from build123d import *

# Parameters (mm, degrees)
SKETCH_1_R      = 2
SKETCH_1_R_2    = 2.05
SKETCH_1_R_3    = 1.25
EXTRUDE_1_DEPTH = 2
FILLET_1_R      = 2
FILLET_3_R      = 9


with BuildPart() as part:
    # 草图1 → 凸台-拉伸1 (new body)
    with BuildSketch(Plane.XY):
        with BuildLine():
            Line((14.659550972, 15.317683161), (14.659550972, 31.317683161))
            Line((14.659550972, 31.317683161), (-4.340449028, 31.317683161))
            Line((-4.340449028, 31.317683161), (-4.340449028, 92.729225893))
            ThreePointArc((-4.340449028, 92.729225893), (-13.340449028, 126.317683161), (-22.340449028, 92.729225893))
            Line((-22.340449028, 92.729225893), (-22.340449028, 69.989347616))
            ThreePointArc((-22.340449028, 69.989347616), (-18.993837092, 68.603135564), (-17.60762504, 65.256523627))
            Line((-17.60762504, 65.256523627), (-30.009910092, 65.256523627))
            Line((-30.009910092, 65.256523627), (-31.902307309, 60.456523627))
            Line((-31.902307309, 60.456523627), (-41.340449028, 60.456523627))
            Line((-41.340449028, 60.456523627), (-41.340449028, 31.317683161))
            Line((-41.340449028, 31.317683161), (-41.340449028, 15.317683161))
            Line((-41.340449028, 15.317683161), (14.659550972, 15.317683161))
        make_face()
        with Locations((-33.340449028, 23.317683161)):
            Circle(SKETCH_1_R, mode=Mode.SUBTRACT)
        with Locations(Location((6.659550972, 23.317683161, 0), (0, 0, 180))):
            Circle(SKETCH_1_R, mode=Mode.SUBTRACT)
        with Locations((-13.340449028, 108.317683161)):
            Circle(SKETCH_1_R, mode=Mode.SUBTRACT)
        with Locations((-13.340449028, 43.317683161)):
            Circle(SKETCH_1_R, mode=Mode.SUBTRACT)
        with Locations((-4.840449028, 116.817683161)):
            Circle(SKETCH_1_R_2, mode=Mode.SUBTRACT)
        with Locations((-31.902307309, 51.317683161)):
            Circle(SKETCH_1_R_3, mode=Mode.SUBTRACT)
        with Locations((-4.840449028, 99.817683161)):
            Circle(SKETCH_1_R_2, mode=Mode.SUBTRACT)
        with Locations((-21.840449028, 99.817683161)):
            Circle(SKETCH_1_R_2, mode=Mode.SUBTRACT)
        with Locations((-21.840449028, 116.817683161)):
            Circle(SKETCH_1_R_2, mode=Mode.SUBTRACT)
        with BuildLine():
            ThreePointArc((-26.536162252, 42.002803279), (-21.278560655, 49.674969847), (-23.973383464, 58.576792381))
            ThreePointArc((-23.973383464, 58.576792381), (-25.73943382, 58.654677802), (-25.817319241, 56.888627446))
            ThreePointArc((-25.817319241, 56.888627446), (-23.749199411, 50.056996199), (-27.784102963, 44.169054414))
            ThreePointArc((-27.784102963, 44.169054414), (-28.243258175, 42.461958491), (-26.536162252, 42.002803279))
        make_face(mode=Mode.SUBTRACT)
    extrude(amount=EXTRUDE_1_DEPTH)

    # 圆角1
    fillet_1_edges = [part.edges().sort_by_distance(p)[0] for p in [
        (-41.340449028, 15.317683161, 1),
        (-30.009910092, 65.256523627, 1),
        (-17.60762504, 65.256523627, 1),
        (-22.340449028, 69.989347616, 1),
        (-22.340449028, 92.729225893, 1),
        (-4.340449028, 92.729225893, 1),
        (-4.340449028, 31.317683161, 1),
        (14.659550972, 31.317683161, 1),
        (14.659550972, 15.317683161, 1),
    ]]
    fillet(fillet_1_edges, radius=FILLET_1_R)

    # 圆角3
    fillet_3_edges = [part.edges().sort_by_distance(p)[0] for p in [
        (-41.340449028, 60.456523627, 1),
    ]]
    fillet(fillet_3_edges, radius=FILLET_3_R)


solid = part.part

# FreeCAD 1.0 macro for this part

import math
import FreeCAD as App
import Part
import Sketcher

V = App.Vector


def edges_at(feature, points):
    """Names of the edges that pass closest to the given points."""
    edges = feature.Shape.Edges
    near = lambda p: min(range(len(edges)), key=lambda i: edges[i].distToShape(Part.Vertex(*p))[0])
    return sorted({f"Edge{near(p) + 1}" for p in points})

doc = App.newDocument("Part")
params = doc.addObject("Spreadsheet::Sheet", "Params")
for row, (alias, value) in enumerate([
    ("sketch1_diameter", "4 mm"),
    ("sketch1_radius", "18 mm"),
    ("sketch1_diameter2", "2.5 mm"),
    ("sketch1_diameter3", "4.1 mm"),
    ("sketch1_width", "19 mm"),
    ("pad1_length", "2 mm"),
    ("fillet_radius", "2 mm"),
    ("fillet2_radius", "9 mm"),
], start=1):
    params.set(f"A{row}", alias)
    params.set(f"B{row}", "=" + value)
    params.setAlias(f"B{row}", alias)

body = doc.addObject("PartDesign::Body", "Body")

# Sketch on XY plane
sketch1 = body.newObject("Sketcher::SketchObject", "Sketch")
sketch1.AttachmentSupport = (doc.getObject("XY_Plane"), [""])
sketch1.MapMode = "FlatFace"
sketch1.addGeometry([
    Part.LineSegment(V(14.7, 15.3, 0), V(14.7, 31.3, 0)),  # 0
    Part.LineSegment(V(14.7, 31.3, 0), V(-4.3, 31.3, 0)),  # 1
    Part.LineSegment(V(-4.3, 31.3, 0), V(-4.3, 92.7, 0)),  # 2
    Part.ArcOfCircle(Part.Circle(V(-13.3, 108.3, 0), V(0, 0, 1), 18), math.radians(-60), math.radians(240)),  # 3
    Part.LineSegment(V(-22.3, 92.7, 0), V(-22.3, 70, 0)),  # 4
    Part.ArcOfCircle(Part.Circle(V(-22.3, 65.3, 0), V(0, 0, 1), 4.7), math.radians(0), math.radians(90)),  # 5
    Part.LineSegment(V(-17.6, 65.3, 0), V(-30, 65.3, 0)),  # 6
    Part.LineSegment(V(-30, 65.3, 0), V(-31.9, 60.5, 0)),  # 7
    Part.LineSegment(V(-31.9, 60.5, 0), V(-41.3, 60.5, 0)),  # 8
    Part.LineSegment(V(-41.3, 60.5, 0), V(-41.3, 15.3, 0)),  # 9
    Part.LineSegment(V(-41.3, 15.3, 0), V(14.7, 15.3, 0)),  # 10
    Part.Circle(V(-33.3, 23.3, 0), V(0, 0, 1), 2),  # 11
    Part.Circle(V(-31.9, 51.3, 0), V(0, 0, 1), 1.2),  # 12
    Part.ArcOfCircle(Part.Circle(V(-31.9, 51.3, 0), V(0, 0, 1), 10.8), math.radians(-60), math.radians(42)),  # 13
    Part.ArcOfCircle(Part.Circle(V(-27.2, 43.1, 0), V(0, 0, 1), 1.2), math.radians(120), math.radians(300)),  # 14
    Part.ArcOfCircle(Part.Circle(V(-31.9, 51.3, 0), V(0, 0, 1), 8.2), math.radians(-60), math.radians(42)),  # 15
    Part.ArcOfCircle(Part.Circle(V(-24.9, 57.7, 0), V(0, 0, 1), 1.2), math.radians(42), math.radians(222)),  # 16
    Part.Circle(V(-13.3, 43.3, 0), V(0, 0, 1), 2),  # 17
    Part.Circle(V(6.7, 23.3, 0), V(0, 0, 1), 2),  # 18
    Part.Circle(V(-21.8, 99.8, 0), V(0, 0, 1), 2),  # 19
    Part.Circle(V(-21.8, 116.8, 0), V(0, 0, 1), 2),  # 20
    Part.Circle(V(-4.8, 99.8, 0), V(0, 0, 1), 2),  # 21
    Part.Circle(V(-13.3, 108.3, 0), V(0, 0, 1), 2),  # 22
    Part.Circle(V(-4.8, 116.8, 0), V(0, 0, 1), 2),  # 23
], False)
sketch1.addConstraint([
    Sketcher.Constraint("Coincident", 0, 2, 1, 1),
    Sketcher.Constraint("Coincident", 1, 2, 2, 1),
    Sketcher.Constraint("Coincident", 2, 2, 3, 1),
    Sketcher.Constraint("Coincident", 3, 2, 4, 1),
    Sketcher.Constraint("Coincident", 4, 2, 5, 2),
    Sketcher.Constraint("Coincident", 5, 1, 6, 1),
    Sketcher.Constraint("Coincident", 6, 2, 7, 1),
    Sketcher.Constraint("Coincident", 7, 2, 8, 1),
    Sketcher.Constraint("Coincident", 8, 2, 9, 1),
    Sketcher.Constraint("Coincident", 9, 2, 10, 1),
    Sketcher.Constraint("Coincident", 10, 2, 0, 1),
    Sketcher.Constraint("Tangent", 13, 1, 14, 2),
    Sketcher.Constraint("Tangent", 14, 1, 15, 1),
    Sketcher.Constraint("Tangent", 15, 2, 16, 2),
    Sketcher.Constraint("Tangent", 16, 1, 13, 2),
    Sketcher.Constraint("Vertical", 0),
    Sketcher.Constraint("Horizontal", 1),
    Sketcher.Constraint("Vertical", 2),
    Sketcher.Constraint("Vertical", 4),
    Sketcher.Constraint("Horizontal", 6),
    Sketcher.Constraint("Horizontal", 8),
    Sketcher.Constraint("Vertical", 9),
    Sketcher.Constraint("Horizontal", 10),
    Sketcher.Constraint("Coincident", 13, 3, 12, 3),
    Sketcher.Constraint("Coincident", 15, 3, 12, 3),
    Sketcher.Constraint("Coincident", 22, 3, 3, 3),
    Sketcher.Constraint("Equal", 12, 14),
    Sketcher.Constraint("Equal", 11, 17),
    Sketcher.Constraint("Equal", 17, 18),
    Sketcher.Constraint("Equal", 19, 20),
    Sketcher.Constraint("Equal", 20, 21),
    Sketcher.Constraint("Equal", 18, 22),
    Sketcher.Constraint("Equal", 21, 23),
    Sketcher.Constraint("Horizontal", 11, 3, 18, 3),
    Sketcher.Constraint("Horizontal", 19, 3, 21, 3),
    Sketcher.Constraint("Horizontal", 20, 3, 23, 3),
    Sketcher.Constraint("Horizontal", 2, 2, 3, 2),
    Sketcher.Constraint("Vertical", 3, 3, 17, 3),
    Sketcher.Constraint("Vertical", 19, 3, 20, 3),
    Sketcher.Constraint("Vertical", 21, 3, 23, 3),
    Sketcher.Constraint("Vertical", 5, 3, 3, 2),
    Sketcher.Constraint("Vertical", 15, 3, 7, 2),
    Sketcher.Constraint("Diameter", 11, 4.0),
    Sketcher.Constraint("Radius", 3, 18.0),
    Sketcher.Constraint("Diameter", 12, 2.5),
    Sketcher.Constraint("Diameter", 19, 4.1),
    Sketcher.Constraint("DistanceX", 1, 2, 1, 1, 19.0),
    Sketcher.Constraint("DistanceX", 10, 1, 10, 2, 56.0),
    Sketcher.Constraint("DistanceY", 0, 1, 0, 2, 16.0),
    Sketcher.Constraint("Radius", 13, 10.75),
    Sketcher.Constraint("DistanceX", 5, 3, 3, 3, 9.0),
    Sketcher.Constraint("DistanceX", 11, 3, 5, 3, 11.0),
    Sketcher.Constraint("DistanceY", 11, 3, 3, 3, 85.0),
    Sketcher.Constraint("DistanceY", 11, 3, 12, 3, 28.0),
    Sketcher.Constraint("DistanceY", 17, 3, 15, 3, 8.0),
    Sketcher.Constraint("DistanceX", 17, 3, 18, 3, 20.0),
    Sketcher.Constraint("DistanceY", 19, 3, 20, 3, 17.0),
    Sketcher.Constraint("DistanceX", 19, 3, 21, 3, 17.0),
    Sketcher.Constraint("DistanceY", 18, 3, 0, 2, 8.0),
    Sketcher.Constraint("DistanceX", 19, 3, 3, 3, 8.5),
    Sketcher.Constraint("DistanceY", 19, 3, 3, 3, 8.5),
    Sketcher.Constraint("DistanceY", 7, 2, 6, 2, 4.8),
    Sketcher.Constraint("Radius", 5, 4.732824),
    Sketcher.Constraint("DistanceX", 8, 2, 8, 1, 9.438142),
    Sketcher.Constraint("DistanceY", 4, 2, 4, 1, 22.739878),
    Sketcher.Constraint("DistanceY", 9, 2, 9, 1, 45.13884),
    Sketcher.Constraint("Distance", 7, 5.15957),
    Sketcher.Constraint("DistanceX", 3, 3, -1, 1, 13.340449),
    Sketcher.Constraint("DistanceY", -1, 1, 14, 3, 43.085929),
    Sketcher.Constraint("DistanceX", 16, 3, -1, 1, 24.895351),
    Sketcher.Constraint("DistanceY", -1, 1, 16, 3, 57.73271),
])
sketch1.setExpression("Constraints[42]", "Params.sketch1_diameter")
sketch1.setExpression("Constraints[43]", "Params.sketch1_radius")
sketch1.setExpression("Constraints[44]", "Params.sketch1_diameter2")
sketch1.setExpression("Constraints[45]", "Params.sketch1_diameter3")
sketch1.setExpression("Constraints[46]", "Params.sketch1_width")
pad1 = body.newObject("PartDesign::Pad", "Pad")
pad1.Profile = sketch1
pad1.setExpression("Length", "Params.pad1_length")
doc.recompute()

fillet = body.newObject("PartDesign::Fillet", "Fillet")
fillet.Base = (pad1, edges_at(pad1, [
    (-41.34, 15.318, 1),
    (-30.01, 65.257, 1),
    (-17.608, 65.257, 1),
    (-22.34, 69.989, 1),
    (-22.34, 92.729, 1),
    (-4.34, 92.729, 1),
    (-4.34, 31.318, 1),
    (14.66, 31.318, 1),
    (14.66, 15.318, 1),
]))
fillet.setExpression("Radius", "Params.fillet_radius")
doc.recompute()

fillet2 = body.newObject("PartDesign::Fillet", "Fillet001")
fillet2.Base = (fillet, edges_at(fillet, [(-41.34, 60.457, 1)]))
fillet2.setExpression("Radius", "Params.fillet2_radius")

doc.recompute()
